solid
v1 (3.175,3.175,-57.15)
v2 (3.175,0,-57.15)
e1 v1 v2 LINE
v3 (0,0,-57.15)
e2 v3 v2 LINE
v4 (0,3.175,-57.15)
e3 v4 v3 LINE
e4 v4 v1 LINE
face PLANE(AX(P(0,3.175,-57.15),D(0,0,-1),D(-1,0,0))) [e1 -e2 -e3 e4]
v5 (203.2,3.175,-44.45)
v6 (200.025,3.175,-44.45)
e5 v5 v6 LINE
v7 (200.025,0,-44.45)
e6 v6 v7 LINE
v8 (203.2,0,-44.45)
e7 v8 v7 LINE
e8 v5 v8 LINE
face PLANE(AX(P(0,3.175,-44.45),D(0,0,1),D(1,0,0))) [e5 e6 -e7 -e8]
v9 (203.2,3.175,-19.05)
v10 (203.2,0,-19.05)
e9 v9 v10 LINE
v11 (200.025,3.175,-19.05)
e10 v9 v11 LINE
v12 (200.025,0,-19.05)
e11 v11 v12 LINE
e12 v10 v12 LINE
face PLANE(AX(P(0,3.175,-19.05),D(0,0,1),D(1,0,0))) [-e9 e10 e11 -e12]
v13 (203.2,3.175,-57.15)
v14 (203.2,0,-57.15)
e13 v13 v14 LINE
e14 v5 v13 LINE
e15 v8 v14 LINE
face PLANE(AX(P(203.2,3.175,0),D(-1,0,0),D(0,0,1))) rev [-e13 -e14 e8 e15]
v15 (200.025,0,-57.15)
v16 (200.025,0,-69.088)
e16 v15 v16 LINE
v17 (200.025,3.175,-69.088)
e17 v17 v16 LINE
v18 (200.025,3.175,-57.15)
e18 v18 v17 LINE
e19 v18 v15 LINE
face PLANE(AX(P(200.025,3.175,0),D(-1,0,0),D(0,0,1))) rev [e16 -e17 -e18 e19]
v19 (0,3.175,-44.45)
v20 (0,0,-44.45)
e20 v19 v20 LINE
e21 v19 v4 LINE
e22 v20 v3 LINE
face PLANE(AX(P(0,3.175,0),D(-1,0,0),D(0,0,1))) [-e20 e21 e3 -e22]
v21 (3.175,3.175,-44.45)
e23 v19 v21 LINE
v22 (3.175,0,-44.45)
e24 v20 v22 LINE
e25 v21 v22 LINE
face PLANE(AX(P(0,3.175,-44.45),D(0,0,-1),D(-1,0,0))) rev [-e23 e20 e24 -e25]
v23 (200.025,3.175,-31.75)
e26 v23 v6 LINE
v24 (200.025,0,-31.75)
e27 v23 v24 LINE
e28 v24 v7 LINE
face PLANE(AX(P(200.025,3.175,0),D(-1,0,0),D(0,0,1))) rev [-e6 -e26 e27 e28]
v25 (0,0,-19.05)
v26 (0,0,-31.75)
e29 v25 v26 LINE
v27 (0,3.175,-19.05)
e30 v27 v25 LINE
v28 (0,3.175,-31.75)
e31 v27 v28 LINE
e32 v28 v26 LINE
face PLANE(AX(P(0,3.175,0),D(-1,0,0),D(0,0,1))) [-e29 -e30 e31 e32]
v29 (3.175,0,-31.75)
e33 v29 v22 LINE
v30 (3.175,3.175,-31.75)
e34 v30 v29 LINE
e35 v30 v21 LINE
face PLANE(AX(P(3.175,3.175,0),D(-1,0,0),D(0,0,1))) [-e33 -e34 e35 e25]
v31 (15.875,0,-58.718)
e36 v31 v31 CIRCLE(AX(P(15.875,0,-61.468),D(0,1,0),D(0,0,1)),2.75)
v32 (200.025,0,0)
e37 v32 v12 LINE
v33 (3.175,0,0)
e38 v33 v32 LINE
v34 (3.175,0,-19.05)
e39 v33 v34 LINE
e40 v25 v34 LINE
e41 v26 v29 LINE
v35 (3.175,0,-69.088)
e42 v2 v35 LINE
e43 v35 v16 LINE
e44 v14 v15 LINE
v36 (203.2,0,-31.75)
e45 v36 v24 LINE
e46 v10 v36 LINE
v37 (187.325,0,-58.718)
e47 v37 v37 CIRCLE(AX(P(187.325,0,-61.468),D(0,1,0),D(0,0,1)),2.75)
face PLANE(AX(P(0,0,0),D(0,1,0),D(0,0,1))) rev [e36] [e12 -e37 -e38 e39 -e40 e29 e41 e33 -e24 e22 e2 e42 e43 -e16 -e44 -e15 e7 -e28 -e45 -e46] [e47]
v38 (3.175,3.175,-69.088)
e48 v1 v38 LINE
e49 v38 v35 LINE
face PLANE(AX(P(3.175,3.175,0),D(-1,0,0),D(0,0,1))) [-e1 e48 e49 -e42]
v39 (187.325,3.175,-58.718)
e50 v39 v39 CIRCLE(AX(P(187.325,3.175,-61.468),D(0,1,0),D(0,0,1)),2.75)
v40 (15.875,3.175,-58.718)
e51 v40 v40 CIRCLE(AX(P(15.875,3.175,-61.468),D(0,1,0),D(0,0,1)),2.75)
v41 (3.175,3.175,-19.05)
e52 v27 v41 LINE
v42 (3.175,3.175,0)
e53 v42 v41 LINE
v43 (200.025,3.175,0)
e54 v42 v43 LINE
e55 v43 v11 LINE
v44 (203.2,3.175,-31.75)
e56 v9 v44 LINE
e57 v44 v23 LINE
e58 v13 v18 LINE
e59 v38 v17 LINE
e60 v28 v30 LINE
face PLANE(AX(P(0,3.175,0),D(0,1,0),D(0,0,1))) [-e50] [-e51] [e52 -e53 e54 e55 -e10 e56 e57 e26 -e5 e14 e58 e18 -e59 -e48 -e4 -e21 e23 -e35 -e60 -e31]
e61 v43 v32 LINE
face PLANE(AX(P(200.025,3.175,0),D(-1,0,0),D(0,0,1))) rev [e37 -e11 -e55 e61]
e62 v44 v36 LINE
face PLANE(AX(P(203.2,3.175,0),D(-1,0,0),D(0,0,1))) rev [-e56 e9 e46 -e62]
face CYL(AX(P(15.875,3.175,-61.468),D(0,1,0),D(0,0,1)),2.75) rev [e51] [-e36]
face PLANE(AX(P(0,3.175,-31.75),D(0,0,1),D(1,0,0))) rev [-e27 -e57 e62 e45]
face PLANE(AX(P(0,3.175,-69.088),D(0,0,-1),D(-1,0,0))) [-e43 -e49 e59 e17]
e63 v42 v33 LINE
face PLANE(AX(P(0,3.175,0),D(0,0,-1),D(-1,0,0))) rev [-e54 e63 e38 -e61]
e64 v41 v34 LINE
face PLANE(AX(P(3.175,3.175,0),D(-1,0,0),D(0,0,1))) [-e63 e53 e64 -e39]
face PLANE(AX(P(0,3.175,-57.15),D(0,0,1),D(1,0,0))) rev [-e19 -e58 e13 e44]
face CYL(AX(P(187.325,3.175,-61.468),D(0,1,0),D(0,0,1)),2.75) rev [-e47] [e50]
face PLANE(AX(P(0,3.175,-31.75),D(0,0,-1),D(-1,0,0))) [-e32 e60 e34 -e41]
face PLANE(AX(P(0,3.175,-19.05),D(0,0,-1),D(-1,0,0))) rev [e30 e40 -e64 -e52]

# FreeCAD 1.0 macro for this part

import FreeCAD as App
import Part
import Sketcher
Q = App.Units.Quantity

doc = App.newDocument("Part")
params = doc.addObject("Spreadsheet::Sheet", "Params")
for row, (alias, value) in enumerate([
    ("sketch1_height", "0.5 in"),
    ("sketch1_width", "7.75 in"),
    ("sketch1_height2", "0.47 in"),
    ("sketch1_height3", "0.75 in"),
    ("pad1_length", "0.125 in"),
    ("hole_diameter", "5.5 mm"),
], start=1):
    params.set(f"A{row}", alias)
    params.set(f"B{row}", "=" + value)
    params.setAlias(f"B{row}", alias)

body = doc.addObject("PartDesign::Body", "Body")

# Sketch on XZ plane
sketch1 = body.newObject("Sketcher::SketchObject", "Sketch")
sketch1.AttachmentSupport = (doc.getObject("XZ_Plane"), [""])
sketch1.MapMode = "FlatFace"
sketch1.addGeometry(Part.LineSegment(App.Vector(3.2, -69.1, 0), App.Vector(3.2, -57.1, 0)), False)
sketch1.addGeometry(Part.LineSegment(App.Vector(3.2, -57.1, 0), App.Vector(0, -57.1, 0)), False)
sketch1.addGeometry(Part.LineSegment(App.Vector(0, -57.1, 0), App.Vector(0, -44.5, 0)), False)
sketch1.addGeometry(Part.LineSegment(App.Vector(0, -44.5, 0), App.Vector(3.2, -44.5, 0)), False)
sketch1.addGeometry(Part.LineSegment(App.Vector(3.2, -44.5, 0), App.Vector(3.2, -31.8, 0)), False)
sketch1.addGeometry(Part.LineSegment(App.Vector(3.2, -31.8, 0), App.Vector(0, -31.8, 0)), False)
sketch1.addGeometry(Part.LineSegment(App.Vector(0, -31.8, 0), App.Vector(0, -19.1, 0)), False)
sketch1.addGeometry(Part.LineSegment(App.Vector(0, -19.1, 0), App.Vector(3.2, -19.1, 0)), False)
sketch1.addGeometry(Part.LineSegment(App.Vector(3.2, -19.1, 0), App.Vector(3.2, 0, 0)), False)
sketch1.addGeometry(Part.LineSegment(App.Vector(3.2, 0, 0), App.Vector(200, 0, 0)), False)
sketch1.addGeometry(Part.LineSegment(App.Vector(200, 0, 0), App.Vector(200, -19.1, 0)), False)
sketch1.addGeometry(Part.LineSegment(App.Vector(200, -19.1, 0), App.Vector(203.2, -19.1, 0)), False)
sketch1.addGeometry(Part.LineSegment(App.Vector(203.2, -19.1, 0), App.Vector(203.2, -31.8, 0)), False)
sketch1.addGeometry(Part.LineSegment(App.Vector(203.2, -31.8, 0), App.Vector(200, -31.8, 0)), False)
sketch1.addGeometry(Part.LineSegment(App.Vector(200, -31.8, 0), App.Vector(200, -44.5, 0)), False)
sketch1.addGeometry(Part.LineSegment(App.Vector(200, -44.5, 0), App.Vector(203.2, -44.5, 0)), False)
sketch1.addGeometry(Part.LineSegment(App.Vector(203.2, -44.5, 0), App.Vector(203.2, -57.1, 0)), False)
sketch1.addGeometry(Part.LineSegment(App.Vector(203.2, -57.1, 0), App.Vector(200, -57.1, 0)), False)
sketch1.addGeometry(Part.LineSegment(App.Vector(200, -57.1, 0), App.Vector(200, -69.1, 0)), False)
sketch1.addGeometry(Part.LineSegment(App.Vector(200, -69.1, 0), App.Vector(3.2, -69.1, 0)), False)
sketch1.addConstraint(Sketcher.Constraint("Coincident", 0, 2, 1, 1))
sketch1.addConstraint(Sketcher.Constraint("Coincident", 1, 2, 2, 1))
sketch1.addConstraint(Sketcher.Constraint("Coincident", 2, 2, 3, 1))
sketch1.addConstraint(Sketcher.Constraint("Coincident", 3, 2, 4, 1))
sketch1.addConstraint(Sketcher.Constraint("Coincident", 4, 2, 5, 1))
sketch1.addConstraint(Sketcher.Constraint("Coincident", 5, 2, 6, 1))
sketch1.addConstraint(Sketcher.Constraint("Coincident", 6, 2, 7, 1))
sketch1.addConstraint(Sketcher.Constraint("Coincident", 7, 2, 8, 1))
sketch1.addConstraint(Sketcher.Constraint("Coincident", 8, 2, 9, 1))
sketch1.addConstraint(Sketcher.Constraint("Coincident", 9, 2, 10, 1))
sketch1.addConstraint(Sketcher.Constraint("Coincident", 10, 2, 11, 1))
sketch1.addConstraint(Sketcher.Constraint("Coincident", 11, 2, 12, 1))
sketch1.addConstraint(Sketcher.Constraint("Coincident", 12, 2, 13, 1))
sketch1.addConstraint(Sketcher.Constraint("Coincident", 13, 2, 14, 1))
sketch1.addConstraint(Sketcher.Constraint("Coincident", 14, 2, 15, 1))
sketch1.addConstraint(Sketcher.Constraint("Coincident", 15, 2, 16, 1))
sketch1.addConstraint(Sketcher.Constraint("Coincident", 16, 2, 17, 1))
sketch1.addConstraint(Sketcher.Constraint("Coincident", 17, 2, 18, 1))
sketch1.addConstraint(Sketcher.Constraint("Coincident", 18, 2, 19, 1))
sketch1.addConstraint(Sketcher.Constraint("Coincident", 19, 2, 0, 1))
sketch1.addConstraint(Sketcher.Constraint("Vertical", 0))
sketch1.addConstraint(Sketcher.Constraint("Horizontal", 1))
sketch1.addConstraint(Sketcher.Constraint("Vertical", 2))
sketch1.addConstraint(Sketcher.Constraint("Horizontal", 3))
sketch1.addConstraint(Sketcher.Constraint("Vertical", 4))
sketch1.addConstraint(Sketcher.Constraint("Horizontal", 5))
sketch1.addConstraint(Sketcher.Constraint("Vertical", 6))
sketch1.addConstraint(Sketcher.Constraint("Horizontal", 7))
sketch1.addConstraint(Sketcher.Constraint("Vertical", 8))
sketch1.addConstraint(Sketcher.Constraint("Horizontal", 9))
sketch1.addConstraint(Sketcher.Constraint("Vertical", 10))
sketch1.addConstraint(Sketcher.Constraint("Horizontal", 11))
sketch1.addConstraint(Sketcher.Constraint("Vertical", 12))
sketch1.addConstraint(Sketcher.Constraint("Horizontal", 13))
sketch1.addConstraint(Sketcher.Constraint("Vertical", 14))
sketch1.addConstraint(Sketcher.Constraint("Horizontal", 15))
sketch1.addConstraint(Sketcher.Constraint("Vertical", 16))
sketch1.addConstraint(Sketcher.Constraint("Horizontal", 17))
sketch1.addConstraint(Sketcher.Constraint("Vertical", 18))
sketch1.addConstraint(Sketcher.Constraint("Horizontal", 19))
sketch1.addConstraint(Sketcher.Constraint("PointOnObject", 1, 2, -2))
sketch1.addConstraint(Sketcher.Constraint("PointOnObject", 5, 2, -2))
sketch1.addConstraint(Sketcher.Constraint("PointOnObject", 8, 2, -1))
sketch1.addConstraint(Sketcher.Constraint("Horizontal", 7, 2, 10, 2))
sketch1.addConstraint(Sketcher.Constraint("Horizontal", 5, 2, 12, 2))
sketch1.addConstraint(Sketcher.Constraint("Horizontal", 3, 2, 14, 2))
sketch1.addConstraint(Sketcher.Constraint("Horizontal", 1, 2, 16, 2))
sketch1.addConstraint(Sketcher.Constraint("Vertical", 0, 2, 3, 2))
sketch1.addConstraint(Sketcher.Constraint("Vertical", 4, 2, 7, 2))
sketch1.addConstraint(Sketcher.Constraint("Vertical", 10, 2, 13, 2))
sketch1.addConstraint(Sketcher.Constraint("Vertical", 12, 2, 15, 2))
sketch1.addConstraint(Sketcher.Constraint("Vertical", 14, 2, 17, 2))
sketch1.addConstraint(Sketcher.Constraint("Equal", 7, 11))
sketch1.addConstraint(Sketcher.Constraint("Equal", 2, 4))
sketch1.addConstraint(Sketcher.Constraint("Equal", 4, 6))
sketch1.addConstraint(Sketcher.Constraint("DistanceY", 2, 1, 2, 2, Q("0.5 in")))
sketch1.addConstraint(Sketcher.Constraint("DistanceX", -1, 1, 11, 2, Q("8 in")))
sketch1.addConstraint(Sketcher.Constraint("DistanceX", 9, 1, 9, 2, Q("7.75 in")))
sketch1.addConstraint(Sketcher.Constraint("DistanceY", 0, 1, 0, 2, Q("0.47 in")))
sketch1.addConstraint(Sketcher.Constraint("DistanceY", 8, 1, 8, 2, Q("0.75 in")))
sketch1.setExpression("Constraints[55]", "Params.sketch1_height")
sketch1.setExpression("Constraints[57]", "Params.sketch1_width")
sketch1.setExpression("Constraints[58]", "Params.sketch1_height2")
sketch1.setExpression("Constraints[59]", "Params.sketch1_height3")
pad1 = body.newObject("PartDesign::Pad", "Pad")
pad1.Profile = sketch1
pad1.setExpression("Length", "Params.pad1_length")
pad1.Reversed = True

# Sketch on XZ plane
sketch2 = body.newObject("Sketcher::SketchObject", "Sketch001")
sketch2.AttachmentSupport = (doc.getObject("XZ_Plane"), [""])
sketch2.MapMode = "FlatFace"
sketch2.AttachmentOffset = App.Placement(App.Vector(0, 0, -0.125 * 25.4), App.Rotation())
sketch2.addGeometry(Part.Circle(App.Vector(15.9, -61.5, 0), App.Vector(0, 0, 1), 2.8), False)
sketch2.addGeometry(Part.Circle(App.Vector(187.3, -61.5, 0), App.Vector(0, 0, 1), 2.8), False)
sketch2.addConstraint(Sketcher.Constraint("Equal", 0, 1))
sketch2.addConstraint(Sketcher.Constraint("Horizontal", 0, 3, 1, 3))
sketch2.addConstraint(Sketcher.Constraint("Diameter", 0, 5.5))
sketch2.addConstraint(Sketcher.Constraint("DistanceY", 0, 3, -1, 1, Q("2.42 in")))
sketch2.addConstraint(Sketcher.Constraint("DistanceX", 0, 3, 1, 3, Q("6.75 in")))
sketch2.addConstraint(Sketcher.Constraint("DistanceX", -1, 1, 0, 3, Q("0.625 in")))
doc.recompute()
hole = body.newObject("PartDesign::Hole", "Hole")
hole.Profile = sketch2
hole.ThreadType = "None"
hole.setExpression("Diameter", "Params.hole_diameter")
hole.DepthType = "ThroughAll"
hole.Reversed = True

doc.recompute()
